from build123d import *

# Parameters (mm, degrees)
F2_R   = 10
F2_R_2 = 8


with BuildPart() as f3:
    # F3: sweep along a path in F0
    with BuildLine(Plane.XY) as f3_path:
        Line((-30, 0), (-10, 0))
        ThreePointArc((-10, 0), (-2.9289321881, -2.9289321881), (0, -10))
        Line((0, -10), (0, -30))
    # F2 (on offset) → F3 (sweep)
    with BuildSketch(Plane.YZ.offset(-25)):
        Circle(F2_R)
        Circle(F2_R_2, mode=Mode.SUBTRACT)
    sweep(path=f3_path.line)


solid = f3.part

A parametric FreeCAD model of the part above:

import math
import FreeCAD as App
import Part
import Sketcher
from FreeCAD import Vector
Q = App.Units.Quantity

doc = App.newDocument("Part")
body = doc.addObject("PartDesign::Body", "Body")

sketch1 = body.newObject("Sketcher::SketchObject", "Sketch")
sketch1.AttachmentSupport = (doc.getObject("YZ_Plane"), [""])
sketch1.MapMode = "FlatFace"
sketch1.AttachmentOffset = App.Placement(Vector(0, 0, -25), App.Rotation())
sketch1.addGeometry(Part.Circle(Vector(0, 0, 0), Vector(0, 0, 1), 10), False)
sketch1.addGeometry(Part.Circle(Vector(0, 0, 0), Vector(0, 0, 1), 8), False)
sketch1.addConstraint(Sketcher.Constraint("Coincident", 0, 3, -1, 1))
sketch1.addConstraint(Sketcher.Constraint("Coincident", 1, 3, -1, 1))
sketch1.addConstraint(Sketcher.Constraint("Diameter", 0, Q("20 mm")))
sketch1.addConstraint(Sketcher.Constraint("Diameter", 1, Q("16 mm")))

sketch2 = body.newObject("Sketcher::SketchObject", "Sketch001")
sketch2.AttachmentSupport = (doc.getObject("XY_Plane"), [""])
sketch2.MapMode = "FlatFace"
sketch2.addGeometry(Part.LineSegment(Vector(-30, 0, 0), Vector(-10, 0, 0)), False)
sketch2.addGeometry(Part.ArcOfCircle(Part.Circle(Vector(-10, -10, 0), Vector(0, 0, 1), 10), math.radians(0), math.radians(90)), False)
sketch2.addGeometry(Part.LineSegment(Vector(0, -10, 0), Vector(0, -30, 0)), False)
sketch2.addConstraint(Sketcher.Constraint("Tangent", 0, 2, 1, 2))
sketch2.addConstraint(Sketcher.Constraint("Tangent", 1, 1, 2, 1))
sketch2.addConstraint(Sketcher.Constraint("Horizontal", 0))
sketch2.addConstraint(Sketcher.Constraint("Vertical", 2))
sketch2.addConstraint(Sketcher.Constraint("PointOnObject", 0, 1, -1))
sketch2.addConstraint(Sketcher.Constraint("PointOnObject", 1, 1, -2))
sketch2.addConstraint(Sketcher.Constraint("Equal", 0, 2))
sketch2.addConstraint(Sketcher.Constraint("Radius", 1, Q("10 mm")))
sketch2.addConstraint(Sketcher.Constraint("DistanceX", 0, 1, 0, 2, Q("20 mm")))
doc.recompute()

additivepipe = body.newObject("PartDesign::AdditivePipe", "AdditivePipe")
additivepipe.Profile = sketch1
additivepipe.Spine = (sketch2, ["Edge1", "Edge2", "Edge3"])

doc.recompute()
